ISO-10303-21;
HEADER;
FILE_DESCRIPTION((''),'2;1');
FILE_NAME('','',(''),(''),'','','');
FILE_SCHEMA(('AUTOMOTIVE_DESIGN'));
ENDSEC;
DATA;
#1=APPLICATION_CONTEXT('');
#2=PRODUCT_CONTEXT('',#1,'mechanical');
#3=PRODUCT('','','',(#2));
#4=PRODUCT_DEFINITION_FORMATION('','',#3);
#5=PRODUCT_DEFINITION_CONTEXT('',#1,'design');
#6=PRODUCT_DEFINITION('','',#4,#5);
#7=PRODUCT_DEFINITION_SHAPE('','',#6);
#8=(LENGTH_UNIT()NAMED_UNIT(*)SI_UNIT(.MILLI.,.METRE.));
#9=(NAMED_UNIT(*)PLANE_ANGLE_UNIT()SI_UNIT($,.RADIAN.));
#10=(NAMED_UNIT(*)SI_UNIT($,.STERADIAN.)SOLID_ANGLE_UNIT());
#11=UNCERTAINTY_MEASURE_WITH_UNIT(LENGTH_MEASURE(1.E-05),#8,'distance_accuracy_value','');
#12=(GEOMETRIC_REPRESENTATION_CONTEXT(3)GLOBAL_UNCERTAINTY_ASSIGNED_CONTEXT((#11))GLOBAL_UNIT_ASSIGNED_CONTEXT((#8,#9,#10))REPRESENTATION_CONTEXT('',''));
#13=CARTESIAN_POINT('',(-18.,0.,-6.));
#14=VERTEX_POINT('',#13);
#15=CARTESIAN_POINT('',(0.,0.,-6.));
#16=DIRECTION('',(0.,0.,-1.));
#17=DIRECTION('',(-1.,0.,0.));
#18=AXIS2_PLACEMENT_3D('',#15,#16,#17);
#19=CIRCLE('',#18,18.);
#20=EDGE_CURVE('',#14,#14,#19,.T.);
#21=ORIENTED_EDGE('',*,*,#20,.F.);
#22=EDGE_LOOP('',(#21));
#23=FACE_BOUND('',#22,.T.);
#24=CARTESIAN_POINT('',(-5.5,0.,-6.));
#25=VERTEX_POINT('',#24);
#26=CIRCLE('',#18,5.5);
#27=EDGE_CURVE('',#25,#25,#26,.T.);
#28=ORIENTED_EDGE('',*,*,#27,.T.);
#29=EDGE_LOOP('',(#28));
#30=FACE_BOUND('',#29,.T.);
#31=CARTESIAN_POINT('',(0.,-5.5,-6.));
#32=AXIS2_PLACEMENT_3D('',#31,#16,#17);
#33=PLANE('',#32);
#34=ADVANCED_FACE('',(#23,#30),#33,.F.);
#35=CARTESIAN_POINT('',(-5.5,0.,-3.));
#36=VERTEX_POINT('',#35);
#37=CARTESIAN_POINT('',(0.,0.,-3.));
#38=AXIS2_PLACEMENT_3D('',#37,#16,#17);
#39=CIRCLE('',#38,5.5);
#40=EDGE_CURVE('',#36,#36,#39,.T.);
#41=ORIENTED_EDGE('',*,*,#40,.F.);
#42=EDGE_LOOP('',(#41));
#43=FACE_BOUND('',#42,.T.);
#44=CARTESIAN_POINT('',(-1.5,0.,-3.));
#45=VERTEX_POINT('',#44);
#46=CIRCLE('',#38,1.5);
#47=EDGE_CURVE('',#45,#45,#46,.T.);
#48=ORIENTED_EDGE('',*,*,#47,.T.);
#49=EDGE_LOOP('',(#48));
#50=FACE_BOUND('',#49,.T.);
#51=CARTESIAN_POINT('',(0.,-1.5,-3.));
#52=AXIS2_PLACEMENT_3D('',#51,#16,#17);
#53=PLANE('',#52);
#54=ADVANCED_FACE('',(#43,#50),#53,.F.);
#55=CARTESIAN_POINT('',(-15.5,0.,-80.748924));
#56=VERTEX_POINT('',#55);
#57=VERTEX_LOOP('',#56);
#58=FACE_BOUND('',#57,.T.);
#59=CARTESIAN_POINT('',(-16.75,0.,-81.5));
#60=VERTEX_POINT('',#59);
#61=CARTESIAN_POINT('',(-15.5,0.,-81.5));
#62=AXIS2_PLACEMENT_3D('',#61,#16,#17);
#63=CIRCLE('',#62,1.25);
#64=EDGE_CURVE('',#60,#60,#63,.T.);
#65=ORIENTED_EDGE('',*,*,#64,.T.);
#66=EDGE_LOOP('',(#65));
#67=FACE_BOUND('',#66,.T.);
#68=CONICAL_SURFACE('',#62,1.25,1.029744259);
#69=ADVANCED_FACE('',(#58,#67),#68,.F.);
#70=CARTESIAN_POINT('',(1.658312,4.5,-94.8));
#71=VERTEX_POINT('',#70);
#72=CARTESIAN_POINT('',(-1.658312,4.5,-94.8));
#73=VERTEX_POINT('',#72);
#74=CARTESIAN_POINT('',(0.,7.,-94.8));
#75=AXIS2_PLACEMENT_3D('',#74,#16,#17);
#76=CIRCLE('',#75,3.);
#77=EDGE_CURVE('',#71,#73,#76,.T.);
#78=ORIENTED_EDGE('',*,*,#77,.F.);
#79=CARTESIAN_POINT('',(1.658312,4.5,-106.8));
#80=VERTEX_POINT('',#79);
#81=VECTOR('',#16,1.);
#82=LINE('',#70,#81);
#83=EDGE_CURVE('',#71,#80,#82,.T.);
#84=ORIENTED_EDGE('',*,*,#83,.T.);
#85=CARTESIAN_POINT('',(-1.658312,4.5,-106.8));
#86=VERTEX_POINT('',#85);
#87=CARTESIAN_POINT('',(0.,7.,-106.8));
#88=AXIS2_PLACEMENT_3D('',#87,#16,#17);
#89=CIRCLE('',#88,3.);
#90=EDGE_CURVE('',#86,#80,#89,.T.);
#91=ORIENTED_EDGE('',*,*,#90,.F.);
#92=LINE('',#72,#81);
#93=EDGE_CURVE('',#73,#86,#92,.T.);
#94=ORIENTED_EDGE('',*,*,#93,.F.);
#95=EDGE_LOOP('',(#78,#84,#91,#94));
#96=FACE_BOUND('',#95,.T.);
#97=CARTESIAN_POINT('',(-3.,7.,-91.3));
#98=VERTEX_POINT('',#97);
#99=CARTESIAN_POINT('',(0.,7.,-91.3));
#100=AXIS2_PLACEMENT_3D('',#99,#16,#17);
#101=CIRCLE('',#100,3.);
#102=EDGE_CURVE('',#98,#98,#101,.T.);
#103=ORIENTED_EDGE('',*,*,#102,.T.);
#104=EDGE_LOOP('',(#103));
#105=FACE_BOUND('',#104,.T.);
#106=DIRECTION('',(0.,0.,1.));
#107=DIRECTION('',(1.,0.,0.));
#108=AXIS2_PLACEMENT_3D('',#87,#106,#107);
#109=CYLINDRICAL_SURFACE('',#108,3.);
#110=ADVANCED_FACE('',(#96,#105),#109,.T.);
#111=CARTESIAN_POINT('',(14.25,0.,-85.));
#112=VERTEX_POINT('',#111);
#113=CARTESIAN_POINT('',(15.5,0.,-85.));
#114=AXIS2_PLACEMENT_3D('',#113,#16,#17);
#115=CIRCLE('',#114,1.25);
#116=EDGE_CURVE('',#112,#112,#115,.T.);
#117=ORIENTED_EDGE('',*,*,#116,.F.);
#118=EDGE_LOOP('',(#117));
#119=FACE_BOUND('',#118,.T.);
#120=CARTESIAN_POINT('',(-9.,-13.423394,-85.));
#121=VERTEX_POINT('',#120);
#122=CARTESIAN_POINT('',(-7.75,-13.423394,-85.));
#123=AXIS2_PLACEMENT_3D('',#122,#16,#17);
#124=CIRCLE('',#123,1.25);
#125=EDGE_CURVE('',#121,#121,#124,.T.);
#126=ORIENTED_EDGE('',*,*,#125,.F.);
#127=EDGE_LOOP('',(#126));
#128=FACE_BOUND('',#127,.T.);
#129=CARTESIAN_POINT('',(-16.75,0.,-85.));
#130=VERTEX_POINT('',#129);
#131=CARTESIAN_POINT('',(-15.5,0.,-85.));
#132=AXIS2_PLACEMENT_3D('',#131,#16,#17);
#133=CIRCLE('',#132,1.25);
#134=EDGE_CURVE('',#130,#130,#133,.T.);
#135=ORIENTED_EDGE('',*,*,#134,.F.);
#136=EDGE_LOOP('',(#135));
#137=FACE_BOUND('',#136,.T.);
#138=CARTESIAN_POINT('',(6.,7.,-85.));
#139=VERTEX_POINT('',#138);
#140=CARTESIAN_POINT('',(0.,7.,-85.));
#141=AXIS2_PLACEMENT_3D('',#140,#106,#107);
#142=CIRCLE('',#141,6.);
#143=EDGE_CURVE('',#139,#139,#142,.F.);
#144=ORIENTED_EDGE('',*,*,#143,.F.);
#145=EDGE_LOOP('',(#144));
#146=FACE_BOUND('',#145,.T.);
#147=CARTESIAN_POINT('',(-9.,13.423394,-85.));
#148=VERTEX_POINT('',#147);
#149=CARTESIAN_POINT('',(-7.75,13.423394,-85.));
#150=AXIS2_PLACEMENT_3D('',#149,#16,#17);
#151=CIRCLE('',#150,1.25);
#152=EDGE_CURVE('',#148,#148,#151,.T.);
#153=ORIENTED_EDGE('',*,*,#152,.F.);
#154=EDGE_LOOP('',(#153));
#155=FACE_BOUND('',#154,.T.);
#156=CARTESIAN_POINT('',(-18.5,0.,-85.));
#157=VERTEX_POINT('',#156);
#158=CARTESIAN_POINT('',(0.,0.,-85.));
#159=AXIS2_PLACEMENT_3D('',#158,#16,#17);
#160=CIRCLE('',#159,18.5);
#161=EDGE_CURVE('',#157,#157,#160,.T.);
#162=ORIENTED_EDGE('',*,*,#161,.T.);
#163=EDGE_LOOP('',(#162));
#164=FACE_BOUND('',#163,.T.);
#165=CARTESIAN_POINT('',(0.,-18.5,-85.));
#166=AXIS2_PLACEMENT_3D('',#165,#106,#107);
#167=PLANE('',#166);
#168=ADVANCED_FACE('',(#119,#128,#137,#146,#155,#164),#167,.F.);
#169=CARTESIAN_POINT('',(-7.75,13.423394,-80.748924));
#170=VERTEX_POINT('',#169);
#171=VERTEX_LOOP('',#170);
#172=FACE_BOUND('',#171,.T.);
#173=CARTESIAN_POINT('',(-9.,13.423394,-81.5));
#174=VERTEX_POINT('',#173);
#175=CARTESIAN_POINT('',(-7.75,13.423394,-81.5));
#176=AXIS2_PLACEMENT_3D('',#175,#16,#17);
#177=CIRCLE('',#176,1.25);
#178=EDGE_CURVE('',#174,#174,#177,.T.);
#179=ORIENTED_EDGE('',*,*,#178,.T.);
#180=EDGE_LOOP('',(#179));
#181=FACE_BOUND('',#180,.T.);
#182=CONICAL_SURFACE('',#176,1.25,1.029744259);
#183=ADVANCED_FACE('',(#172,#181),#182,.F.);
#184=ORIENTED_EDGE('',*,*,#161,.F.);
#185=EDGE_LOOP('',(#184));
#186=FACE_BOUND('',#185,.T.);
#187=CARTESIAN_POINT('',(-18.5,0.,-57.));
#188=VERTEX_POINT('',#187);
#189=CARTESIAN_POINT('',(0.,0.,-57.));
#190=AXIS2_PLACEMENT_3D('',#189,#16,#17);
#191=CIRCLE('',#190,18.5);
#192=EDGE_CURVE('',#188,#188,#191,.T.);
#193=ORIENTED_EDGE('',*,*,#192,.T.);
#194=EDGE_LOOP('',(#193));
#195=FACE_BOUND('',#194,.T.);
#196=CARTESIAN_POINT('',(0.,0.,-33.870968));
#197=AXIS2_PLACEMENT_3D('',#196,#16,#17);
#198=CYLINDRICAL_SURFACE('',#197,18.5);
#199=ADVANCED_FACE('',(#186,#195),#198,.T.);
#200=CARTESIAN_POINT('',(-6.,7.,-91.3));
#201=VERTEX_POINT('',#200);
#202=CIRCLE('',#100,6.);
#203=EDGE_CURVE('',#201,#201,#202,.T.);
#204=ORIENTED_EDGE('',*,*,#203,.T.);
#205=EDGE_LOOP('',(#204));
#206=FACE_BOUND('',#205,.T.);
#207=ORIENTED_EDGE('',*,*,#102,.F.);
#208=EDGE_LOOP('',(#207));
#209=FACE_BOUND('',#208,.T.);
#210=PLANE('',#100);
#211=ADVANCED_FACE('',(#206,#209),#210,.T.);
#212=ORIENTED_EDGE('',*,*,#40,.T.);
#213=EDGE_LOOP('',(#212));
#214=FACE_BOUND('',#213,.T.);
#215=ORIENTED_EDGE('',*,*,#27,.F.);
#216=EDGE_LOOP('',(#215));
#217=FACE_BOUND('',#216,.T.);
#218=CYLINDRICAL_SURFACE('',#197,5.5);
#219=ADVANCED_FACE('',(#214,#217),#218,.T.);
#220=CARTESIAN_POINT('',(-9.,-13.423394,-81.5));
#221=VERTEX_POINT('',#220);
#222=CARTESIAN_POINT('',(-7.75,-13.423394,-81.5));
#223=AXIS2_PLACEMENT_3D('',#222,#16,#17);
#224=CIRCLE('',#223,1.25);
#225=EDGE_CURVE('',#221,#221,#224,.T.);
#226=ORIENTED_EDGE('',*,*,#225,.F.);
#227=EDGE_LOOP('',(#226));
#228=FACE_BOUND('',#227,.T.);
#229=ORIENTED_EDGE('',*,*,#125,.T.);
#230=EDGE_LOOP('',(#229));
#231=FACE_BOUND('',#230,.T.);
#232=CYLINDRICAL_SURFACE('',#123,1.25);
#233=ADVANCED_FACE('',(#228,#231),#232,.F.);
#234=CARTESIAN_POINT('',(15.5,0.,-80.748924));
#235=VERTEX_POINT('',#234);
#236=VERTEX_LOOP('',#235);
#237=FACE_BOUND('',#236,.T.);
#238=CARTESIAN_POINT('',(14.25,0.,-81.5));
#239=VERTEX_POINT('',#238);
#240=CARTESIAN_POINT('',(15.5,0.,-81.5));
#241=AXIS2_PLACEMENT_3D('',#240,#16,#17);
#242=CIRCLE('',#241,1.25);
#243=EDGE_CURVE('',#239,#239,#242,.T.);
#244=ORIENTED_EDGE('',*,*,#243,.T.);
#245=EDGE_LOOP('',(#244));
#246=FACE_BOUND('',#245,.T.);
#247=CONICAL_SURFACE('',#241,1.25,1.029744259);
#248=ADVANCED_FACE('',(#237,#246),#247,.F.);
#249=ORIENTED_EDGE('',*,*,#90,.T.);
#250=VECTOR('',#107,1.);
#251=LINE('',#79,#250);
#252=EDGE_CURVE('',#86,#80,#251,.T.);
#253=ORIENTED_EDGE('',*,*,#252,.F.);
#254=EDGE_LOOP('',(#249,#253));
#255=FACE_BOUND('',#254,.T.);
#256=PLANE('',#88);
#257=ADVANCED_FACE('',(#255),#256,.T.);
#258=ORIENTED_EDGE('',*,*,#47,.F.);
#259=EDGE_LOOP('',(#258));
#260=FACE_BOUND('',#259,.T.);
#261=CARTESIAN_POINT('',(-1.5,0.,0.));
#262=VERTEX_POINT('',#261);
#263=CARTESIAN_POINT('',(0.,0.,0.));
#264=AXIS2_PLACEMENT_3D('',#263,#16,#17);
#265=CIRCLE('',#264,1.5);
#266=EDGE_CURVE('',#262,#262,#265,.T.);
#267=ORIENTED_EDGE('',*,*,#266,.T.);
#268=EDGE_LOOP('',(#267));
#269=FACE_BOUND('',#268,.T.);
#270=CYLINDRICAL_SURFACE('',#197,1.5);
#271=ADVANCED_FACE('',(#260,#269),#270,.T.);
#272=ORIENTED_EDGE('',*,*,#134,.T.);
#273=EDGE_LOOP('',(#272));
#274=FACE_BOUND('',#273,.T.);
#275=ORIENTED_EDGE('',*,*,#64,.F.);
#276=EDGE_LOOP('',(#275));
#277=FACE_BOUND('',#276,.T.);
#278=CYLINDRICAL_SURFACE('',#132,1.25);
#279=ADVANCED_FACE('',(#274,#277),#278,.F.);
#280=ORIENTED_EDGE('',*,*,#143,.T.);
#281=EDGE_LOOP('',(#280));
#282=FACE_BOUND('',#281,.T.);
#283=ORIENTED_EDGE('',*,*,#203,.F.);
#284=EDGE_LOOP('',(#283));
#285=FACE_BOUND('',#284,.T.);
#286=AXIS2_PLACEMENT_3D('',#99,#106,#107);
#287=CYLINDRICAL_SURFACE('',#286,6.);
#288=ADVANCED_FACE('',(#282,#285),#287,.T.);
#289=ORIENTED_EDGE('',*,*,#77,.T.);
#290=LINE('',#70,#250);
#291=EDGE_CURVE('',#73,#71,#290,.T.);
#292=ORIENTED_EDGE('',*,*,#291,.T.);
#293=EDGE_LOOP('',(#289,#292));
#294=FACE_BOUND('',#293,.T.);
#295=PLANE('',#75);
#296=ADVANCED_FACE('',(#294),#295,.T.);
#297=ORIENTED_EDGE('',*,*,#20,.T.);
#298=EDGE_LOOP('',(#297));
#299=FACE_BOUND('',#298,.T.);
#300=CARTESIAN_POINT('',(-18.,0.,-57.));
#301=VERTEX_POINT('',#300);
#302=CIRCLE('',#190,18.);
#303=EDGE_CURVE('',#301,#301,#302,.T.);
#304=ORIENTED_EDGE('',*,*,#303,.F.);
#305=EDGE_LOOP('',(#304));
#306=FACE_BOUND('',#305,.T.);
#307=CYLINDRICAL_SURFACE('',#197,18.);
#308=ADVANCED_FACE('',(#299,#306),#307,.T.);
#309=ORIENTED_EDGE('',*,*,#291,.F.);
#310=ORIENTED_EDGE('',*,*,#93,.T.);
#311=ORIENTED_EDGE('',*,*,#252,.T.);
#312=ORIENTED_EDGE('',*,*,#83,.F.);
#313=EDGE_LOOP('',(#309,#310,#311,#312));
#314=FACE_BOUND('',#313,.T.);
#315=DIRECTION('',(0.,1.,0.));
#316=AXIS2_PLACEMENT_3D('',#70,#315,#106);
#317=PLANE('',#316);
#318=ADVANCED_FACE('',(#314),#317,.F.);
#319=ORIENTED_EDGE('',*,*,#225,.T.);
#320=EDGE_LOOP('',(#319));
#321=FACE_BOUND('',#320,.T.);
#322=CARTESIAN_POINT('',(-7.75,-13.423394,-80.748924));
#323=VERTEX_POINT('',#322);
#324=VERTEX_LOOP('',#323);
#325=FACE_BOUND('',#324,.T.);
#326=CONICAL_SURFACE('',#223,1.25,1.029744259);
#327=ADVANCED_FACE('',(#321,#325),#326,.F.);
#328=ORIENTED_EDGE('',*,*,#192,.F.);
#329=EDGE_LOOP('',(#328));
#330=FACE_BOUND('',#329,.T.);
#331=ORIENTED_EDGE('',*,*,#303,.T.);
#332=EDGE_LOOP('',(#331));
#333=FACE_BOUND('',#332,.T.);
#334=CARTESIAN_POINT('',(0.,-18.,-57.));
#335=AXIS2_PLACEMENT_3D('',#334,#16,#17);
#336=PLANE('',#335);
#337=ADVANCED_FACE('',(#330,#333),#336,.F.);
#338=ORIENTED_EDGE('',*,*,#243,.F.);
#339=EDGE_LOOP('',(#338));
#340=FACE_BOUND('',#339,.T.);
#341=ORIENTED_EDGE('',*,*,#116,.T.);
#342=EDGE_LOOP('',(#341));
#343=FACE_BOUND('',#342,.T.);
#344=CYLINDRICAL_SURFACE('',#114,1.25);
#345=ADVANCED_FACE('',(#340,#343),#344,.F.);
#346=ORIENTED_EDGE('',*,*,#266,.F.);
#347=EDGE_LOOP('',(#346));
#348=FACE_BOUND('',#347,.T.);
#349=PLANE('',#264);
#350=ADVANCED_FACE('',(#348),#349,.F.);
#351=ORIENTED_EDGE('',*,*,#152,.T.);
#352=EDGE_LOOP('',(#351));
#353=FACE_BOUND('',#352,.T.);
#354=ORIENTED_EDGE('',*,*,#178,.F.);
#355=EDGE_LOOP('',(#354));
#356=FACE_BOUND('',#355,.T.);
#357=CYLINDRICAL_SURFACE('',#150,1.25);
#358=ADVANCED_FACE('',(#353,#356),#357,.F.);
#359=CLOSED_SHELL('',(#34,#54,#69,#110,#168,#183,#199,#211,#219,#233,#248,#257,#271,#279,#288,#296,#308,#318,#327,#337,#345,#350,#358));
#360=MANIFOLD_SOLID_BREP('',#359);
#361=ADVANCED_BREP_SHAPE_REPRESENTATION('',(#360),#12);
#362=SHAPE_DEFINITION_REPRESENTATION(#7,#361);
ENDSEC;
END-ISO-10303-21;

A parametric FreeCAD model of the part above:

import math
import FreeCAD as App
import Part
import Sketcher

V = App.Vector


def add_polygon(sketch, points):
    """Adds a closed chain of lines whose ends are joined by coincident constraints."""
    first, n = sketch.GeometryCount, len(points)
    for a, b in zip(points, points[1:] + points[:1]):
        sketch.addGeometry(Part.LineSegment(App.Vector(*a, 0), App.Vector(*b, 0)), False)
    for i in range(n):
        sketch.addConstraint(Sketcher.Constraint("Coincident", first + i, 2, first + (i + 1) % n, 1))

doc = App.newDocument("Part")
body = doc.addObject("PartDesign::Body", "Body")

sketch1 = body.newObject("Sketcher::SketchObject", "Sketch")
sketch1.AttachmentSupport = (doc.getObject("YZ_Plane"), [""])
sketch1.MapMode = "FlatFace"
add_polygon(sketch1, [(0, 0), (-1.5, 0), (-1.5, -3), (-5.5, -3), (-5.5, -6), (-18, -6), (-18, -57), (-18.5, -57), (-18.5, -85), (0, -85)])
sketch1.addConstraint([
    Sketcher.Constraint("Horizontal", 0),
    Sketcher.Constraint("Vertical", 1),
    Sketcher.Constraint("Horizontal", 2),
    Sketcher.Constraint("Vertical", 3),
    Sketcher.Constraint("Horizontal", 4),
    Sketcher.Constraint("Vertical", 5),
    Sketcher.Constraint("Horizontal", 6),
    Sketcher.Constraint("Vertical", 7),
    Sketcher.Constraint("Horizontal", 8),
    Sketcher.Constraint("Vertical", 9),
    Sketcher.Constraint("Coincident", 9, 2, -1, 1),
    Sketcher.Constraint("Equal", 1, 3),
    Sketcher.Constraint("DistanceX", 2, 2, 2, 1, 4.0),
    Sketcher.Constraint("DistanceY", 1, 2, 1, 1, 3.0),
    Sketcher.Constraint("DistanceY", 5, 2, 5, 1, 51.0),
    Sketcher.Constraint("DistanceY", 7, 2, 7, 1, 28.0),
    Sketcher.Constraint("DistanceX", 0, 2, 0, 1, 1.5),
    Sketcher.Constraint("DistanceX", 4, 2, 4, 1, 12.5),
    Sketcher.Constraint("DistanceX", 6, 2, 6, 1, 0.5),
])
revolution = body.newObject("PartDesign::Revolution", "Revolution")
revolution.Profile = sketch1
revolution.ReferenceAxis = (sketch1, ["V_Axis"])
revolution.Angle = 360

sketch2 = body.newObject("Sketcher::SketchObject", "Sketch001")
sketch2.AttachmentSupport = (doc.getObject("XY_Plane"), [""])
sketch2.MapMode = "FlatFace"
sketch2.AttachmentOffset = App.Placement(V(0, 0, -85), App.Rotation())
sketch2.addGeometry(Part.Circle(V(0, 7, 0), V(0, 0, 1), 6), False)
sketch2.addConstraint([
    Sketcher.Constraint("PointOnObject", 0, 3, -2),
    Sketcher.Constraint("Diameter", 0, 12.0),
    Sketcher.Constraint("DistanceY", -1, 1, 0, 3, 7.0),
])
pad1 = body.newObject("PartDesign::Pad", "Pad")
pad1.Profile = sketch2
pad1.Length = 6.3
pad1.Reversed = True

sketch3 = body.newObject("Sketcher::SketchObject", "Sketch002")
sketch3.AttachmentSupport = (doc.getObject("XY_Plane"), [""])
sketch3.MapMode = "FlatFace"
sketch3.AttachmentOffset = App.Placement(V(0, 0, -91.3), App.Rotation())
sketch3.addGeometry(Part.Circle(V(0, 7, 0), V(0, 0, 1), 3), False)
sketch3.addConstraint([
    Sketcher.Constraint("PointOnObject", 0, 3, -2),
    Sketcher.Constraint("Diameter", 0, 6.0),
    Sketcher.Constraint("DistanceY", -1, 1, 0, 3, 7.0),
])
pad2 = body.newObject("PartDesign::Pad", "Pad001")
pad2.Profile = sketch3
pad2.Length = 15.5
pad2.Reversed = True

sketch4 = body.newObject("Sketcher::SketchObject", "Sketch003")
sketch4.AttachmentSupport = (doc.getObject("XY_Plane"), [""])
sketch4.MapMode = "FlatFace"
sketch4.AttachmentOffset = App.Placement(V(0, 0, -85), App.Rotation())
sketch4.addGeometry([
    Part.Circle(V(-7.8, -13.4, 0), V(0, 0, 1), 1.2),
    Part.Circle(V(-15.5, 0, 0), V(0, 0, 1), 1.2),
    Part.Circle(V(15.5, 0, 0), V(0, 0, 1), 1.2),
    Part.Circle(V(-7.8, 13.4, 0), V(0, 0, 1), 1.2),
], False)
sketch4.addConstraint([
    Sketcher.Constraint("Equal", 0, 1),
    Sketcher.Constraint("Equal", 1, 2),
    Sketcher.Constraint("Equal", 2, 3),
    Sketcher.Constraint("Symmetric", 1, 3, 2, 3, -1, 1),
    Sketcher.Constraint("Symmetric", 0, 3, 3, 3, -1),
    Sketcher.Constraint("PointOnObject", 1, 3, -1),
    Sketcher.Constraint("Diameter", 0, 2.5),
    Sketcher.Constraint("DistanceX", 1, 3, 2, 3, 31.0),
    Sketcher.Constraint("DistanceX", 0, 3, -1, 1, 7.75),
    Sketcher.Constraint("DistanceY", 0, 3, -1, 1, 13.423394),
])
doc.recompute()
hole = body.newObject("PartDesign::Hole", "Hole")
hole.Profile = sketch4
hole.ThreadType = "None"
hole.Diameter = 2.5
hole.DepthType = "Dimension"
hole.Depth = 3.5
hole.DrillPoint = "Angled"
hole.DrillPointAngle = 118
hole.Reversed = True

sketch5 = body.newObject("Sketcher::SketchObject", "Sketch004")
sketch5.AttachmentSupport = (doc.getObject("XY_Plane"), [""])
sketch5.MapMode = "FlatFace"
sketch5.AttachmentOffset = App.Placement(V(0, 0, -94.8), App.Rotation())
sketch5.addGeometry([
    Part.LineSegment(V(-1.7, 4.5, 0), V(1.7, 4.5, 0)),
    Part.ArcOfCircle(Part.Circle(V(0, 7, 0), V(0, 0, 1), 3), math.radians(-124), math.radians(-56)),
], False)
sketch5.addConstraint([
    Sketcher.Constraint("Coincident", 0, 1, 1, 1),
    Sketcher.Constraint("Coincident", 1, 2, 0, 2),
    Sketcher.Constraint("Horizontal", 0),
    Sketcher.Constraint("PointOnObject", 1, 3, -2),
    Sketcher.Constraint("Radius", 1, 3.0),
    Sketcher.Constraint("DistanceY", -1, 1, 1, 3, 7.0),
    Sketcher.Constraint("DistanceY", -1, 1, 0, 1, 4.5),
])
pocket1 = body.newObject("PartDesign::Pocket", "Pocket")
pocket1.Profile = sketch5
pocket1.Length = 12

doc.recompute()
